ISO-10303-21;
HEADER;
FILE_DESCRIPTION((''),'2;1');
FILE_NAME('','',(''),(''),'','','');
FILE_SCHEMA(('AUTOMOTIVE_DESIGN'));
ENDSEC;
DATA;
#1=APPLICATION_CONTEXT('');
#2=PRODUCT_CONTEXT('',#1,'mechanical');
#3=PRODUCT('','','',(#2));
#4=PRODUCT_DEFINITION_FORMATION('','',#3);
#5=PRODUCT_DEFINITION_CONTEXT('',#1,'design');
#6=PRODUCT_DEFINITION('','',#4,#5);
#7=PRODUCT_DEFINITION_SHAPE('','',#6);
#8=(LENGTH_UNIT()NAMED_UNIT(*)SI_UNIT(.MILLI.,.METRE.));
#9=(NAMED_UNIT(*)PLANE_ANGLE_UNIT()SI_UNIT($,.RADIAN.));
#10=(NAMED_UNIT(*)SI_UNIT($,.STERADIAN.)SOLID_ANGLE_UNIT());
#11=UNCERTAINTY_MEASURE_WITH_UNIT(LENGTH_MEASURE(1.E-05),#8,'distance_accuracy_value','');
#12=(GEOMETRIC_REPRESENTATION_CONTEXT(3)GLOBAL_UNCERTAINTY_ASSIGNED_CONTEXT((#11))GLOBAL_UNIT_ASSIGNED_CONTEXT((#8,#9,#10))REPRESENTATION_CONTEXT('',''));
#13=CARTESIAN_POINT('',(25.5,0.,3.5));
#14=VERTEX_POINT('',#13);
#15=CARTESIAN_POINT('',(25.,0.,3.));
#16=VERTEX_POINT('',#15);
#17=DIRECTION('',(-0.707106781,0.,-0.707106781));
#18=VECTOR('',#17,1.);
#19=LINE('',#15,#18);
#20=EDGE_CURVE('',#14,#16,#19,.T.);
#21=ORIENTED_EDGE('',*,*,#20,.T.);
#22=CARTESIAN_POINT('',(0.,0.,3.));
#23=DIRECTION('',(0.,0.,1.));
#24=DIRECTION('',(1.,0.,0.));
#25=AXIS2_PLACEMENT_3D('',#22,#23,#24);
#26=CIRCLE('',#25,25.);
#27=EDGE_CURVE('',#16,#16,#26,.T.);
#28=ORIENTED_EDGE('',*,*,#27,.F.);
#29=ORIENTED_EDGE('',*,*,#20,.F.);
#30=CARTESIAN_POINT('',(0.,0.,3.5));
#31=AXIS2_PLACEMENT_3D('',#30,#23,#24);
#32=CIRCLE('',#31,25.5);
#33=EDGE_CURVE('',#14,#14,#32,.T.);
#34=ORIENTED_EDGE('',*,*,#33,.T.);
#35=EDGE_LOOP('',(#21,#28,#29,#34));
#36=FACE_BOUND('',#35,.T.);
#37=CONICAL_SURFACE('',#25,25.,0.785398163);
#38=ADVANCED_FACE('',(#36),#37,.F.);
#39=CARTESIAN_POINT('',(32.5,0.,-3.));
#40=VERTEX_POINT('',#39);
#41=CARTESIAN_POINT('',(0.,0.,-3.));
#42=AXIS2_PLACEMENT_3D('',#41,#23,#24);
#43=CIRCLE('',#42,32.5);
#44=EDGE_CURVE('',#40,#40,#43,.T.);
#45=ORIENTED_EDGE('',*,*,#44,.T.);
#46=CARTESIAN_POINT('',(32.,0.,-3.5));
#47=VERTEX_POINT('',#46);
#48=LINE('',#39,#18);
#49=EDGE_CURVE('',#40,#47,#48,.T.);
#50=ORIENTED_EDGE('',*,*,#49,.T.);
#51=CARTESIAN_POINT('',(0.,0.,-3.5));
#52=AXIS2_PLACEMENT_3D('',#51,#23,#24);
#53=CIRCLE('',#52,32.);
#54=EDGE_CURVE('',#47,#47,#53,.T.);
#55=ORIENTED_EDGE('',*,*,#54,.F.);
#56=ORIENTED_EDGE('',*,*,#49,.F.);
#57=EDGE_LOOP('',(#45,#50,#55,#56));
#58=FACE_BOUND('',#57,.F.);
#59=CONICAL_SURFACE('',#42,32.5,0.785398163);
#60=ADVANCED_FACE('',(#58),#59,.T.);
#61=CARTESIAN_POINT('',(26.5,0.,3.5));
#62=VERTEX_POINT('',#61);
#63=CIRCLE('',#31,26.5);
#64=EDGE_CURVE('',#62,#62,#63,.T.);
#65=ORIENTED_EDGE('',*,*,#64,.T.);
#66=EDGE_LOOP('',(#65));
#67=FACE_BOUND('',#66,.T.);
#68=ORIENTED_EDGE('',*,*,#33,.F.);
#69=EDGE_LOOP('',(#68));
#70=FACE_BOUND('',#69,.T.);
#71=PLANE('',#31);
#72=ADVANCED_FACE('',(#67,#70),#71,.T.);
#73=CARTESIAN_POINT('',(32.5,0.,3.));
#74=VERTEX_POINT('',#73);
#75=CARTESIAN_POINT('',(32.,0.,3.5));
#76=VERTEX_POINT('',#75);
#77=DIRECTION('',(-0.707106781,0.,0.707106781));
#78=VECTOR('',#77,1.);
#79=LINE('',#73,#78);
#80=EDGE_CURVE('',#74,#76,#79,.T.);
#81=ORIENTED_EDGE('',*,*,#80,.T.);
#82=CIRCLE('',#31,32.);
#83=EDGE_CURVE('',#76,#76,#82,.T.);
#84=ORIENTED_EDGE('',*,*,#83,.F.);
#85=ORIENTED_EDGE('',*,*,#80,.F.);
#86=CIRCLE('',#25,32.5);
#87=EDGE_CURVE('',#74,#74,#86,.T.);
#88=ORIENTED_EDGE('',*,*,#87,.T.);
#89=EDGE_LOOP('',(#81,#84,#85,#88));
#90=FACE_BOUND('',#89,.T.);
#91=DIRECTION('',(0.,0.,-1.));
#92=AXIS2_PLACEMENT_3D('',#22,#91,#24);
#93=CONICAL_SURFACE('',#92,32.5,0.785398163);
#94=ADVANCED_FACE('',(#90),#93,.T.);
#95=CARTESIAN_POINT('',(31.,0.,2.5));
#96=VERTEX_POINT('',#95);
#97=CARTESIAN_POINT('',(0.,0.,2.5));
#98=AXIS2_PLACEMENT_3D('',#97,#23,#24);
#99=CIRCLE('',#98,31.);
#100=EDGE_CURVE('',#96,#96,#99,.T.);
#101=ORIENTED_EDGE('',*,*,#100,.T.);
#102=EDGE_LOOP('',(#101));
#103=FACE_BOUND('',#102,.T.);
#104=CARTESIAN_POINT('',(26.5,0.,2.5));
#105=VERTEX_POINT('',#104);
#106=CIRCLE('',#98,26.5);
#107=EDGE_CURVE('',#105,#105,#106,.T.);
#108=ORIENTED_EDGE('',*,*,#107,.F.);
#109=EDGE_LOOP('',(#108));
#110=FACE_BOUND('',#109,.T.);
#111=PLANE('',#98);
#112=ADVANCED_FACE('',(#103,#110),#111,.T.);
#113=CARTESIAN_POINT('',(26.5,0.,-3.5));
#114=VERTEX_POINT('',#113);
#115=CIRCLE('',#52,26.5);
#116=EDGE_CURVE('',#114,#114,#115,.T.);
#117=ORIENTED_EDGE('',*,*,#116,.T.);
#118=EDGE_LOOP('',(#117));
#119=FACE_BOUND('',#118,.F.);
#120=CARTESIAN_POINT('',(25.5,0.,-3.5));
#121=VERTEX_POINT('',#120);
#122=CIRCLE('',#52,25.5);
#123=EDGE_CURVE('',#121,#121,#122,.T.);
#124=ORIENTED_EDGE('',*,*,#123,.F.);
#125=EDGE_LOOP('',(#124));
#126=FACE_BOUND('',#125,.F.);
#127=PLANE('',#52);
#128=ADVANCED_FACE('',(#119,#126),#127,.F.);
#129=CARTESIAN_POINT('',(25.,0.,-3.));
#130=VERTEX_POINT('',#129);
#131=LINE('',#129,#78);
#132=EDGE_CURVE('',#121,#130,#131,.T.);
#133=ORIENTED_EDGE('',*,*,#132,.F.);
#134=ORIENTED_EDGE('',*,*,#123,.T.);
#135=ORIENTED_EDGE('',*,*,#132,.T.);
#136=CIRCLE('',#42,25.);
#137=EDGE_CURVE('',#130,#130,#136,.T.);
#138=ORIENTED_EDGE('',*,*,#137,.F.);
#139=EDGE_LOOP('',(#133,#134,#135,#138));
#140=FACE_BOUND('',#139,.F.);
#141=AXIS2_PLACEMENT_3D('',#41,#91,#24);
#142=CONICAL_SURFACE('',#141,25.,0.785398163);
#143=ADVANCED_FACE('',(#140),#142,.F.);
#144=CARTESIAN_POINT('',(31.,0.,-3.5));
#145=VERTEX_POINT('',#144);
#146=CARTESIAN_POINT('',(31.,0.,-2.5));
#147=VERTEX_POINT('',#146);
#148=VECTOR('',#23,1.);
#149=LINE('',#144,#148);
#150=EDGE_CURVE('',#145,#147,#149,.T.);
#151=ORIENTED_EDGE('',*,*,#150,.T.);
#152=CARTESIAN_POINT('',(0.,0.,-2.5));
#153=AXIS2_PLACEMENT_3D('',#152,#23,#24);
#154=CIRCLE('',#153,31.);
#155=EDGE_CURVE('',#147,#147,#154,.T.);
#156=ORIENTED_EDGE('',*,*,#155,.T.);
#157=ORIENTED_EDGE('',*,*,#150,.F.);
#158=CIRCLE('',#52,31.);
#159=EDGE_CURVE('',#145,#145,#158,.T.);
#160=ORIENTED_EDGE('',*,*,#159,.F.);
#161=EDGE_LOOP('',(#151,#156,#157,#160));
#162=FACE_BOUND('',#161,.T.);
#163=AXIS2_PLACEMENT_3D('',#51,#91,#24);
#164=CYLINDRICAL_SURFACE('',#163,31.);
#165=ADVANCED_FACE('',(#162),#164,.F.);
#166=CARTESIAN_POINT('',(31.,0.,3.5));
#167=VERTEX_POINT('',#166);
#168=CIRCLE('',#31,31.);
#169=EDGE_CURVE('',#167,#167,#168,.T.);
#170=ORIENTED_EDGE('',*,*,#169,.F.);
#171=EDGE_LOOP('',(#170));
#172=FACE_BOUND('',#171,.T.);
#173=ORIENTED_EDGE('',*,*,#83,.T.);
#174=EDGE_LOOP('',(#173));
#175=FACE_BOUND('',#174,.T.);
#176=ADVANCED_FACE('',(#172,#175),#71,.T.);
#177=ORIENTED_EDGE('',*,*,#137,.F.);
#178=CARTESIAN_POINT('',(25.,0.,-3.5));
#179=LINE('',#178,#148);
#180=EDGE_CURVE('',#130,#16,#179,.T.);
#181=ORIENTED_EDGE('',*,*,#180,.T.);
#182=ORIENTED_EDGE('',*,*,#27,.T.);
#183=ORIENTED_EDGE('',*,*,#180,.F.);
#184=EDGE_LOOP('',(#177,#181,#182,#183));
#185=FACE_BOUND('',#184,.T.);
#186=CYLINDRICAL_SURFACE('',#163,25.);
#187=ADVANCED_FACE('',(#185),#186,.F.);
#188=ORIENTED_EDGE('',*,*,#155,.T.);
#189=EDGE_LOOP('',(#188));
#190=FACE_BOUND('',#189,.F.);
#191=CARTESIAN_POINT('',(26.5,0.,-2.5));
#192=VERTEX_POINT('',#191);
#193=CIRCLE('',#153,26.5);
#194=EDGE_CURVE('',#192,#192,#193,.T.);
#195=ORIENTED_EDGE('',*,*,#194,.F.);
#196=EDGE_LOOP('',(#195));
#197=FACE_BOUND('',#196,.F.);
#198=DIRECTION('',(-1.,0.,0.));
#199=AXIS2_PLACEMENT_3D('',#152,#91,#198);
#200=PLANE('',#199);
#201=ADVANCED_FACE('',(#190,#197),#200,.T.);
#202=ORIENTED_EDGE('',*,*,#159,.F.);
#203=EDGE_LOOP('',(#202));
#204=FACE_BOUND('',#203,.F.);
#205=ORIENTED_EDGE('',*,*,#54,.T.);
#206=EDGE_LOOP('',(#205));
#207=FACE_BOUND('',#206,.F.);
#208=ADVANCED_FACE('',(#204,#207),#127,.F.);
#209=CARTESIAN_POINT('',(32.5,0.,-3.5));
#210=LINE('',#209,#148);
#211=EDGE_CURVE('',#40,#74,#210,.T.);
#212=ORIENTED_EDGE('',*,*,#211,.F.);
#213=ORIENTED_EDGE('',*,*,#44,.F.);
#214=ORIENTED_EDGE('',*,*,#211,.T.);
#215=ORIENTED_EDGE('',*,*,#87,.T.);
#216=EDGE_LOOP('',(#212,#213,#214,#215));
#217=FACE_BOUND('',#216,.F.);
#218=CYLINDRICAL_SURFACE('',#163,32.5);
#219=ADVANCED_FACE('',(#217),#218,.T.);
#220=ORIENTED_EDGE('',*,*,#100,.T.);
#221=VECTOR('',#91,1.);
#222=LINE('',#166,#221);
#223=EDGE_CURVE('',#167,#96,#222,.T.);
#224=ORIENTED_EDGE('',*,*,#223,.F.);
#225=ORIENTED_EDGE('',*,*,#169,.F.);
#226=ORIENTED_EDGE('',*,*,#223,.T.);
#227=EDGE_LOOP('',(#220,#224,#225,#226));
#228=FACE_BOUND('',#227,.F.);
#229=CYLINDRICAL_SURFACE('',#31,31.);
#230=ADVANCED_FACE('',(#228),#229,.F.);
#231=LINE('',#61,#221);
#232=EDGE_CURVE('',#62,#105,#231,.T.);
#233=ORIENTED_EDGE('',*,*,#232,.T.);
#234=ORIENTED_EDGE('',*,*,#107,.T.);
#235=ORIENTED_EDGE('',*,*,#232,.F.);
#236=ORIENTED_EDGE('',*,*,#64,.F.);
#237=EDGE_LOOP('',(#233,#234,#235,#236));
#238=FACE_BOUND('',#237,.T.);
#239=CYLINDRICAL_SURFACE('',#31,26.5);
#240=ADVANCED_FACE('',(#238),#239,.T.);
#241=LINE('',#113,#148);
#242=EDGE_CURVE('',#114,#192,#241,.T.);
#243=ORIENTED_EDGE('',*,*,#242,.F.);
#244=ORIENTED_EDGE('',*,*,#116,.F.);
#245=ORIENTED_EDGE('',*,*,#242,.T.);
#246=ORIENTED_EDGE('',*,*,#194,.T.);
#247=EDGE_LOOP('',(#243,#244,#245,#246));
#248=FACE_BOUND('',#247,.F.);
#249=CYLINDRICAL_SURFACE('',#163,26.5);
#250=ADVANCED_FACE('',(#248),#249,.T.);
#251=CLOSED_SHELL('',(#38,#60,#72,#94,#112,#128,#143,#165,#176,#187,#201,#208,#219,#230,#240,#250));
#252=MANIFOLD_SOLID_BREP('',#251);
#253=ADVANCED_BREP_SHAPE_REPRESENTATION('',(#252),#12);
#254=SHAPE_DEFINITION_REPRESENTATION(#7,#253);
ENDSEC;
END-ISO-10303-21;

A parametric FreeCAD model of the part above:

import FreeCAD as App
import Part
import Sketcher


def edges_at(feature, points):
    """Names of the edges that pass closest to the given points."""
    edges = feature.Shape.Edges
    near = lambda p: min(range(len(edges)), key=lambda i: edges[i].distToShape(Part.Vertex(*p))[0])
    return sorted({f"Edge{near(p) + 1}" for p in points})

doc = App.newDocument("Part")
body = doc.addObject("PartDesign::Body", "Body")

# Sketch on XY plane
sketch1 = body.newObject("Sketcher::SketchObject", "Sketch")
sketch1.AttachmentSupport = (doc.getObject("XY_Plane"), [""])
sketch1.MapMode = "FlatFace"
sketch1.AttachmentOffset = App.Placement(App.Vector(0, 0, -3.5), App.Rotation())
sketch1.addGeometry([
    Part.Circle(App.Vector(0, 0, 0), App.Vector(0, 0, 1), 32),
    Part.Circle(App.Vector(0, 0, 0), App.Vector(0, 0, 1), 25),
], False)
sketch1.addConstraint([
    Sketcher.Constraint("Coincident", 0, 3, -1, 1),
    Sketcher.Constraint("Coincident", 1, 3, -1, 1),
    Sketcher.Constraint("Diameter", 0, 65.0),
    Sketcher.Constraint("Diameter", 1, 50.0),
])
pad1 = body.newObject("PartDesign::Pad", "Pad")
pad1.Profile = sketch1
pad1.Length = 7

# Sketch on XY plane
sketch2 = body.newObject("Sketcher::SketchObject", "Sketch001")
sketch2.AttachmentSupport = (doc.getObject("XY_Plane"), [""])
sketch2.MapMode = "FlatFace"
sketch2.AttachmentOffset = App.Placement(App.Vector(0, 0, 3.5), App.Rotation())
sketch2.addGeometry([
    Part.Circle(App.Vector(0, 0, 0), App.Vector(0, 0, 1), 31),
    Part.Circle(App.Vector(0, 0, 0), App.Vector(0, 0, 1), 26),
], False)
sketch2.addConstraint([
    Sketcher.Constraint("Coincident", 0, 3, -1, 1),
    Sketcher.Constraint("Coincident", 1, 3, -1, 1),
    Sketcher.Constraint("Diameter", 0, 62.0),
    Sketcher.Constraint("Diameter", 1, 53.0),
])
pocket1 = body.newObject("PartDesign::Pocket", "Pocket")
pocket1.Profile = sketch2
pocket1.Length = 1
doc.recompute()

mirrored = body.newObject("PartDesign::Mirrored", "Mirrored")
mirrored.Originals = [pocket1]
mirrored.MirrorPlane = (doc.getObject("XY_Plane"), [""])
body.Tip = mirrored
doc.recompute()

chamfer = body.newObject("PartDesign::Chamfer", "Chamfer")
chamfer.Base = (mirrored, edges_at(mirrored, [
    (-32.5, 0, 3.5),
    (-32.5, 0, -3.5),
    (-25, 0, 3.5),
    (-25, 0, -3.5),
]))
chamfer.Size = 0.5

doc.recompute()
